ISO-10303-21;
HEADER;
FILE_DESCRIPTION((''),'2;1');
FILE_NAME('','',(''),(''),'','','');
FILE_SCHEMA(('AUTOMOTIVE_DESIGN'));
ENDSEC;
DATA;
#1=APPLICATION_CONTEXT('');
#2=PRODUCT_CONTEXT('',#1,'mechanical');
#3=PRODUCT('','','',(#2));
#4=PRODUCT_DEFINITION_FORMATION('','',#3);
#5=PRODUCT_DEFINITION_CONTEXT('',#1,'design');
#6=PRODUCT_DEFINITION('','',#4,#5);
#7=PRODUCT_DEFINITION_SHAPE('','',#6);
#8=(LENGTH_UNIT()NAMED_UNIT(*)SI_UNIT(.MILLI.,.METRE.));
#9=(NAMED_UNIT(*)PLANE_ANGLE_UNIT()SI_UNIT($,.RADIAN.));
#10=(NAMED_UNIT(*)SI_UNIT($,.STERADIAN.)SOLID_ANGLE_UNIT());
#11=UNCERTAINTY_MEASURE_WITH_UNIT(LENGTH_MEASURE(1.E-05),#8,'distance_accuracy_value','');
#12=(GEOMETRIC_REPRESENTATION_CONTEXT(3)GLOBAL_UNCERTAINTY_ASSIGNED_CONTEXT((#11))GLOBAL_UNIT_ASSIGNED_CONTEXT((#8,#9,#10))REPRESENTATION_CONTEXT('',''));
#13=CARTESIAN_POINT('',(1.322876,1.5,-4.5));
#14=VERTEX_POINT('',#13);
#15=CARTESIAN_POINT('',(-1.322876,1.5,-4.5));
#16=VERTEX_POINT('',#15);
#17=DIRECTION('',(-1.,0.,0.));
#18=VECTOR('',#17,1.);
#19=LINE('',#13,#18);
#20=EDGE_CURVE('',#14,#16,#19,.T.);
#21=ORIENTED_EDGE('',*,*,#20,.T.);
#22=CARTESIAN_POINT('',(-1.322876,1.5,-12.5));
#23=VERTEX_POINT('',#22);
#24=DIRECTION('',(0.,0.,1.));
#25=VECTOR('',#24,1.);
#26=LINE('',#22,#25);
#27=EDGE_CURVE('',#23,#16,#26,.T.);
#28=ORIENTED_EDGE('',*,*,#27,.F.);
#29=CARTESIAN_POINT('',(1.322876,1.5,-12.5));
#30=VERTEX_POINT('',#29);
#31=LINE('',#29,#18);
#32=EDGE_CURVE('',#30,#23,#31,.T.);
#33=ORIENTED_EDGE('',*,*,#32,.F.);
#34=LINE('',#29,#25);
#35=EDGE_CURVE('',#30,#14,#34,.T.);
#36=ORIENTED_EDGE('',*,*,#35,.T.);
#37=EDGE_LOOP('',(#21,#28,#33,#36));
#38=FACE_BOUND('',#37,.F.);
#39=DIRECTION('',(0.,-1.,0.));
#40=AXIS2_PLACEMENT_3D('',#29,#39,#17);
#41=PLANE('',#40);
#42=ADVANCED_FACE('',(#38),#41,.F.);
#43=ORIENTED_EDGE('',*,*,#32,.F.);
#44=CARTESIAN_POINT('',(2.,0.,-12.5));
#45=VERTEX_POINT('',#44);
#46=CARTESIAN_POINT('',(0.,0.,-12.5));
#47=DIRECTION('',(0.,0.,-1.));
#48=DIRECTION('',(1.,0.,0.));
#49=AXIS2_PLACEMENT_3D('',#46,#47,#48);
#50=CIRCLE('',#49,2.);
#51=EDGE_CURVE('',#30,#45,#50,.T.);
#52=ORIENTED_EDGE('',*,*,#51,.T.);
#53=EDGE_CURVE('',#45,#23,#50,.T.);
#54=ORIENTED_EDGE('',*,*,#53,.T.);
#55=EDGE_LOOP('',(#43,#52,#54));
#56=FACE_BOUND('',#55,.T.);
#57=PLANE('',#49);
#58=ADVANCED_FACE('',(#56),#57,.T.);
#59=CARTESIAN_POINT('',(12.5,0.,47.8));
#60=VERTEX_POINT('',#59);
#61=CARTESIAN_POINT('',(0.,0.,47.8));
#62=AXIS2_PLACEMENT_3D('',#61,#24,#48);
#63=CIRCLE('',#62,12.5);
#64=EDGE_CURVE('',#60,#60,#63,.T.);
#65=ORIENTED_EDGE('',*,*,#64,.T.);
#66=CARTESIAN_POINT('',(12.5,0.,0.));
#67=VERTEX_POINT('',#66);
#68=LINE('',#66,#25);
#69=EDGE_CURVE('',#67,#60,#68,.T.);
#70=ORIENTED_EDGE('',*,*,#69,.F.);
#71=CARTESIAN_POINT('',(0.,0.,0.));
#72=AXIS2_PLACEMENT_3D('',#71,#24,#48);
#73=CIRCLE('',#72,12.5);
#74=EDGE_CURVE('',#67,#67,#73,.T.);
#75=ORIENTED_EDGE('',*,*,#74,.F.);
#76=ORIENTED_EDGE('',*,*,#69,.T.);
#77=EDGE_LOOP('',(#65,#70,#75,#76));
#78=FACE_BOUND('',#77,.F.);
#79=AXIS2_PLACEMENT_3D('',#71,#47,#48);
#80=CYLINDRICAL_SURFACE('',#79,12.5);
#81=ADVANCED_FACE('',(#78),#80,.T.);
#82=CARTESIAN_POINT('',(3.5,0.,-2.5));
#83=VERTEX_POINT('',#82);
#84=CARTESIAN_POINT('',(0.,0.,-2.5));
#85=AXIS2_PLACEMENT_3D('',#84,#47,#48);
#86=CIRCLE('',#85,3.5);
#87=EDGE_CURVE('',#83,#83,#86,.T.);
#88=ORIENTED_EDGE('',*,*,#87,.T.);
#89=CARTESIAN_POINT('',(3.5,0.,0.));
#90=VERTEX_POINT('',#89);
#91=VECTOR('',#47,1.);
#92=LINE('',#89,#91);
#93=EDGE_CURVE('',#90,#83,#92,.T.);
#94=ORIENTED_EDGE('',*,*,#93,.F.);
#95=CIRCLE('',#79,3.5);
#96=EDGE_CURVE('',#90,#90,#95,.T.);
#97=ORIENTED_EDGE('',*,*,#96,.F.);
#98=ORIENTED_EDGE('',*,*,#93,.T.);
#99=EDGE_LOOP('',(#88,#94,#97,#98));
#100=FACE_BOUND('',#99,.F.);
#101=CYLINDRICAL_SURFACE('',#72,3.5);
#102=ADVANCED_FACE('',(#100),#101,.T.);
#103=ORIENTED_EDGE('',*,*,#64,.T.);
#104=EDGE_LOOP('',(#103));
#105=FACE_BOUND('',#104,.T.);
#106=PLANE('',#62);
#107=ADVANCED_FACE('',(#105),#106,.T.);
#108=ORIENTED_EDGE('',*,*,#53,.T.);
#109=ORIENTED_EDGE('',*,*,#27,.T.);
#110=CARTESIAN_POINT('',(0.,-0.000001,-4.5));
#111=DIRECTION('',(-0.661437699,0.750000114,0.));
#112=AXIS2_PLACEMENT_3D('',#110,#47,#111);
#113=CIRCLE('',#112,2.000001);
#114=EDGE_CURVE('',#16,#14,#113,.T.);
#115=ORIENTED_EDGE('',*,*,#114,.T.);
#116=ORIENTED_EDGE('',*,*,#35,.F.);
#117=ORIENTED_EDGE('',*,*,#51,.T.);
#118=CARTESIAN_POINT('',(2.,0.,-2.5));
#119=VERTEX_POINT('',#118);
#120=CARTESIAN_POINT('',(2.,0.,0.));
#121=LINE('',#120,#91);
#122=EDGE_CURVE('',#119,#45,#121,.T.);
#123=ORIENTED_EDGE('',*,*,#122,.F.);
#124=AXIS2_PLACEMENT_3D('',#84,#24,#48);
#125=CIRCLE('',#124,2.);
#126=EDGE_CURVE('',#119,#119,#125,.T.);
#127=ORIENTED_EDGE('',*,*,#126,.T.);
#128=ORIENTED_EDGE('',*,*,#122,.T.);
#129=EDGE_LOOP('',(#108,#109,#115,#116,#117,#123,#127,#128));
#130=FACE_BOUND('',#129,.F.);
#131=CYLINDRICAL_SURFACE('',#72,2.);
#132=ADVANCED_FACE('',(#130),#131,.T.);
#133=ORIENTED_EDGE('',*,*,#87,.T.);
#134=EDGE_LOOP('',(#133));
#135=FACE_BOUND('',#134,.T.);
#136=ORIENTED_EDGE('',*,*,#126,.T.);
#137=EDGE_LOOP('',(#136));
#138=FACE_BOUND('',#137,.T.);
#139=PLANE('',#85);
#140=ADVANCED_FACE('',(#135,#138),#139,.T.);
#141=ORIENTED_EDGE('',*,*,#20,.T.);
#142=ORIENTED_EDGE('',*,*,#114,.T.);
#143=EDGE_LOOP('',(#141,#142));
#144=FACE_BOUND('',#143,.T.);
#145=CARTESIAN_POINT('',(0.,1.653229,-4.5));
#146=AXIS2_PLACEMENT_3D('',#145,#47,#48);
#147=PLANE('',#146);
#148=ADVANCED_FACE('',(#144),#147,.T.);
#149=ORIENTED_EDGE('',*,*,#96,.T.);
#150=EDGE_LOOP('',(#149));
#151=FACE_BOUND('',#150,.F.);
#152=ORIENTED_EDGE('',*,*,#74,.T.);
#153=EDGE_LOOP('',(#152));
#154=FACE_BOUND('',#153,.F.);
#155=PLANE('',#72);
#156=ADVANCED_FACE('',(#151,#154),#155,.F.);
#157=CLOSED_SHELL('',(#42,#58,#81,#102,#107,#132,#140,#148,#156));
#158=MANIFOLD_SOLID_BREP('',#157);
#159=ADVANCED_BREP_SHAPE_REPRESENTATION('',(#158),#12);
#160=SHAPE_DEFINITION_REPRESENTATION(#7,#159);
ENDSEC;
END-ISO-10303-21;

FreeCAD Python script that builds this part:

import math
import FreeCAD as App
import Part
import Sketcher

doc = App.newDocument("Part")
body = doc.addObject("PartDesign::Body", "Body")

sketch1 = body.newObject("Sketcher::SketchObject", "Sketch")
sketch1.AttachmentSupport = (doc.getObject("XY_Plane"), [""])
sketch1.MapMode = "FlatFace"
sketch1.addGeometry(Part.Circle(App.Vector(0, 0, 0), App.Vector(0, 0, 1), 12), False)
sketch1.addConstraint(Sketcher.Constraint("Coincident", 0, 3, -1, 1))
sketch1.addConstraint(Sketcher.Constraint("Diameter", 0, 25.0))
pad1 = body.newObject("PartDesign::Pad", "Pad")
pad1.Profile = sketch1
pad1.Length = 47.8

sketch2 = body.newObject("Sketcher::SketchObject", "Sketch001")
sketch2.AttachmentSupport = (doc.getObject("XY_Plane"), [""])
sketch2.MapMode = "FlatFace"
sketch2.addGeometry(Part.Circle(App.Vector(0, 0, 0), App.Vector(0, 0, 1), 3.5), False)
sketch2.addConstraint(Sketcher.Constraint("Coincident", 0, 3, -1, 1))
sketch2.addConstraint(Sketcher.Constraint("Diameter", 0, 7.0))
pad2 = body.newObject("PartDesign::Pad", "Pad001")
pad2.Profile = sketch2
pad2.Length = 2.5
pad2.Reversed = True

sketch3 = body.newObject("Sketcher::SketchObject", "Sketch002")
sketch3.AttachmentSupport = (doc.getObject("XY_Plane"), [""])
sketch3.MapMode = "FlatFace"
sketch3.addGeometry(Part.Circle(App.Vector(0, 0, 0), App.Vector(0, 0, 1), 2), False)
sketch3.addConstraint(Sketcher.Constraint("Coincident", 0, 3, -1, 1))
sketch3.addConstraint(Sketcher.Constraint("Diameter", 0, 4.0))
pad3 = body.newObject("PartDesign::Pad", "Pad002")
pad3.Profile = sketch3
pad3.Length = 12.5
pad3.Reversed = True

sketch4 = body.newObject("Sketcher::SketchObject", "Sketch003")
sketch4.AttachmentSupport = (doc.getObject("XY_Plane"), [""])
sketch4.MapMode = "FlatFace"
sketch4.AttachmentOffset = App.Placement(App.Vector(0, 0, -12.5), App.Rotation())
sketch4.addGeometry(Part.ArcOfCircle(Part.Circle(App.Vector(0, 0, 0), App.Vector(0, 0, 1), 2), math.radians(49), math.radians(131)), False)
sketch4.addGeometry(Part.LineSegment(App.Vector(1.3, 1.5, 0), App.Vector(-1.3, 1.5, 0)), False)
sketch4.addConstraint(Sketcher.Constraint("Coincident", 0, 1, 1, 1))
sketch4.addConstraint(Sketcher.Constraint("Coincident", 1, 2, 0, 2))
sketch4.addConstraint(Sketcher.Constraint("Horizontal", 1))
sketch4.addConstraint(Sketcher.Constraint("Coincident", 0, 3, -1, 1))
sketch4.addConstraint(Sketcher.Constraint("Radius", 0, 2.000001))
sketch4.addConstraint(Sketcher.Constraint("DistanceY", -1, 1, 0, 1, 1.5))
pocket1 = body.newObject("PartDesign::Pocket", "Pocket")
pocket1.Profile = sketch4
pocket1.Length = 8
pocket1.Reversed = True

doc.recompute()
